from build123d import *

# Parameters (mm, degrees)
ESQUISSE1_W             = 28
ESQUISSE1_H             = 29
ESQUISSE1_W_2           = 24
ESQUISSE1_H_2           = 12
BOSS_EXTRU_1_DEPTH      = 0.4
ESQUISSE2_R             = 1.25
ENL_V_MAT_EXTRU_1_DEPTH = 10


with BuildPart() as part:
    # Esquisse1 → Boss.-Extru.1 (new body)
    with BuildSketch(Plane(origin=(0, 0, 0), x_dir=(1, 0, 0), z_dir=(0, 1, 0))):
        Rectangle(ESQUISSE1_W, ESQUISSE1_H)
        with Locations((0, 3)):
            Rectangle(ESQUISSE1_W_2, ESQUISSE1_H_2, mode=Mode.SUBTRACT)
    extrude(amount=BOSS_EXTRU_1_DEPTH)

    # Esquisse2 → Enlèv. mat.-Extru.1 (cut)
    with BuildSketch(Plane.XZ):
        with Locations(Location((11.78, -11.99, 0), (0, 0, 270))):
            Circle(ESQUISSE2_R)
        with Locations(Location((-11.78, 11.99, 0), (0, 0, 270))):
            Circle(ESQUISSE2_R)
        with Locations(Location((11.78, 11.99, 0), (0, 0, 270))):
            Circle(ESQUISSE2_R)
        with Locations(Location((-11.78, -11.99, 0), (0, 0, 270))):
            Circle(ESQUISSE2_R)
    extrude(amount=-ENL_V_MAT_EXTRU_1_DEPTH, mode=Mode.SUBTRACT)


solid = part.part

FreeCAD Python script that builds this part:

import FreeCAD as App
import Part
import Sketcher
from FreeCAD import Vector
Q = App.Units.Quantity


def add_polygon(sketch, points):
    """Adds a closed chain of lines whose ends are joined by coincident constraints."""
    first, n = sketch.GeometryCount, len(points)
    for a, b in zip(points, points[1:] + points[:1]):
        sketch.addGeometry(Part.LineSegment(App.Vector(*a, 0), App.Vector(*b, 0)), False)
    for i in range(n):
        sketch.addConstraint(Sketcher.Constraint("Coincident", first + i, 2, first + (i + 1) % n, 1))

doc = App.newDocument("Part")
body = doc.addObject("PartDesign::Body", "Body")

# Sketch on XZ plane
sketch1 = doc.addObject("Sketcher::SketchObject", "Sketch")
body.addObject(sketch1)
sketch1.AttachmentSupport = (doc.XZ_Plane, [""])
sketch1.MapMode = "FlatFace"
add_polygon(sketch1, [(-14, -14), (-14, 14), (14, 14), (14, -14)])  # lines 0-3
add_polygon(sketch1, [(12, 3), (-12, 3), (-12, -9), (12, -9)])  # lines 4-7
sketch1.addConstraint(Sketcher.Constraint("Vertical", 0))
sketch1.addConstraint(Sketcher.Constraint("Horizontal", 1))
sketch1.addConstraint(Sketcher.Constraint("Vertical", 2))
sketch1.addConstraint(Sketcher.Constraint("Horizontal", 3))
sketch1.addConstraint(Sketcher.Constraint("Horizontal", 4))
sketch1.addConstraint(Sketcher.Constraint("Vertical", 5))
sketch1.addConstraint(Sketcher.Constraint("Horizontal", 6))
sketch1.addConstraint(Sketcher.Constraint("Vertical", 7))
sketch1.addConstraint(Sketcher.Constraint("Symmetric", 0, 2, 2, 2, -1, 1))
sketch1.addConstraint(Sketcher.Constraint("DistanceX", 1, 1, 1, 2, Q("28 mm")))
sketch1.addConstraint(Sketcher.Constraint("DistanceX", 4, 2, 4, 1, Q("24 mm")))
sketch1.addConstraint(Sketcher.Constraint("DistanceY", 0, 1, 0, 2, Q("29 mm")))
sketch1.addConstraint(Sketcher.Constraint("DistanceY", 5, 2, 5, 1, Q("12 mm")))
sketch1.addConstraint(Sketcher.Constraint("DistanceX", 4, 2, -1, 1, Q("12 mm")))
sketch1.addConstraint(Sketcher.Constraint("DistanceY", -1, 1, 4, 2, Q("3 mm")))
pad1 = doc.addObject("PartDesign::Pad", "Pad")
body.addObject(pad1)
pad1.Profile = sketch1
pad1.Length = 0.4
pad1.Reversed = True

# Sketch on XZ plane
sketch2 = doc.addObject("Sketcher::SketchObject", "Sketch001")
body.addObject(sketch2)
sketch2.AttachmentSupport = (doc.XZ_Plane, [""])
sketch2.MapMode = "FlatFace"
sketch2.addGeometry(Part.Circle(Vector(11.8, -12, 0), Vector(0, 0, 1), 1.2), False)
sketch2.addGeometry(Part.Circle(Vector(-11.8, 12, 0), Vector(0, 0, 1), 1.2), False)
sketch2.addGeometry(Part.Circle(Vector(11.8, 12, 0), Vector(0, 0, 1), 1.2), False)
sketch2.addGeometry(Part.Circle(Vector(-11.8, -12, 0), Vector(0, 0, 1), 1.2), False)
sketch2.addConstraint(Sketcher.Constraint("Equal", 0, 1))
sketch2.addConstraint(Sketcher.Constraint("Equal", 1, 2))
sketch2.addConstraint(Sketcher.Constraint("Equal", 2, 3))
sketch2.addConstraint(Sketcher.Constraint("Symmetric", 0, 3, 1, 3, -1, 1))
sketch2.addConstraint(Sketcher.Constraint("Symmetric", 2, 3, 3, 3, -1, 1))
sketch2.addConstraint(Sketcher.Constraint("Symmetric", 1, 3, 2, 3, -2))
sketch2.addConstraint(Sketcher.Constraint("Diameter", 0, Q("2.5 mm")))
sketch2.addConstraint(Sketcher.Constraint("DistanceX", -1, 1, 0, 3, Q("11.78 mm")))
sketch2.addConstraint(Sketcher.Constraint("DistanceY", 0, 3, -1, 1, Q("11.99 mm")))
pocket1 = doc.addObject("PartDesign::Pocket", "Pocket")
body.addObject(pocket1)
pocket1.Profile = sketch2
pocket1.Length = 10

doc.recompute()
